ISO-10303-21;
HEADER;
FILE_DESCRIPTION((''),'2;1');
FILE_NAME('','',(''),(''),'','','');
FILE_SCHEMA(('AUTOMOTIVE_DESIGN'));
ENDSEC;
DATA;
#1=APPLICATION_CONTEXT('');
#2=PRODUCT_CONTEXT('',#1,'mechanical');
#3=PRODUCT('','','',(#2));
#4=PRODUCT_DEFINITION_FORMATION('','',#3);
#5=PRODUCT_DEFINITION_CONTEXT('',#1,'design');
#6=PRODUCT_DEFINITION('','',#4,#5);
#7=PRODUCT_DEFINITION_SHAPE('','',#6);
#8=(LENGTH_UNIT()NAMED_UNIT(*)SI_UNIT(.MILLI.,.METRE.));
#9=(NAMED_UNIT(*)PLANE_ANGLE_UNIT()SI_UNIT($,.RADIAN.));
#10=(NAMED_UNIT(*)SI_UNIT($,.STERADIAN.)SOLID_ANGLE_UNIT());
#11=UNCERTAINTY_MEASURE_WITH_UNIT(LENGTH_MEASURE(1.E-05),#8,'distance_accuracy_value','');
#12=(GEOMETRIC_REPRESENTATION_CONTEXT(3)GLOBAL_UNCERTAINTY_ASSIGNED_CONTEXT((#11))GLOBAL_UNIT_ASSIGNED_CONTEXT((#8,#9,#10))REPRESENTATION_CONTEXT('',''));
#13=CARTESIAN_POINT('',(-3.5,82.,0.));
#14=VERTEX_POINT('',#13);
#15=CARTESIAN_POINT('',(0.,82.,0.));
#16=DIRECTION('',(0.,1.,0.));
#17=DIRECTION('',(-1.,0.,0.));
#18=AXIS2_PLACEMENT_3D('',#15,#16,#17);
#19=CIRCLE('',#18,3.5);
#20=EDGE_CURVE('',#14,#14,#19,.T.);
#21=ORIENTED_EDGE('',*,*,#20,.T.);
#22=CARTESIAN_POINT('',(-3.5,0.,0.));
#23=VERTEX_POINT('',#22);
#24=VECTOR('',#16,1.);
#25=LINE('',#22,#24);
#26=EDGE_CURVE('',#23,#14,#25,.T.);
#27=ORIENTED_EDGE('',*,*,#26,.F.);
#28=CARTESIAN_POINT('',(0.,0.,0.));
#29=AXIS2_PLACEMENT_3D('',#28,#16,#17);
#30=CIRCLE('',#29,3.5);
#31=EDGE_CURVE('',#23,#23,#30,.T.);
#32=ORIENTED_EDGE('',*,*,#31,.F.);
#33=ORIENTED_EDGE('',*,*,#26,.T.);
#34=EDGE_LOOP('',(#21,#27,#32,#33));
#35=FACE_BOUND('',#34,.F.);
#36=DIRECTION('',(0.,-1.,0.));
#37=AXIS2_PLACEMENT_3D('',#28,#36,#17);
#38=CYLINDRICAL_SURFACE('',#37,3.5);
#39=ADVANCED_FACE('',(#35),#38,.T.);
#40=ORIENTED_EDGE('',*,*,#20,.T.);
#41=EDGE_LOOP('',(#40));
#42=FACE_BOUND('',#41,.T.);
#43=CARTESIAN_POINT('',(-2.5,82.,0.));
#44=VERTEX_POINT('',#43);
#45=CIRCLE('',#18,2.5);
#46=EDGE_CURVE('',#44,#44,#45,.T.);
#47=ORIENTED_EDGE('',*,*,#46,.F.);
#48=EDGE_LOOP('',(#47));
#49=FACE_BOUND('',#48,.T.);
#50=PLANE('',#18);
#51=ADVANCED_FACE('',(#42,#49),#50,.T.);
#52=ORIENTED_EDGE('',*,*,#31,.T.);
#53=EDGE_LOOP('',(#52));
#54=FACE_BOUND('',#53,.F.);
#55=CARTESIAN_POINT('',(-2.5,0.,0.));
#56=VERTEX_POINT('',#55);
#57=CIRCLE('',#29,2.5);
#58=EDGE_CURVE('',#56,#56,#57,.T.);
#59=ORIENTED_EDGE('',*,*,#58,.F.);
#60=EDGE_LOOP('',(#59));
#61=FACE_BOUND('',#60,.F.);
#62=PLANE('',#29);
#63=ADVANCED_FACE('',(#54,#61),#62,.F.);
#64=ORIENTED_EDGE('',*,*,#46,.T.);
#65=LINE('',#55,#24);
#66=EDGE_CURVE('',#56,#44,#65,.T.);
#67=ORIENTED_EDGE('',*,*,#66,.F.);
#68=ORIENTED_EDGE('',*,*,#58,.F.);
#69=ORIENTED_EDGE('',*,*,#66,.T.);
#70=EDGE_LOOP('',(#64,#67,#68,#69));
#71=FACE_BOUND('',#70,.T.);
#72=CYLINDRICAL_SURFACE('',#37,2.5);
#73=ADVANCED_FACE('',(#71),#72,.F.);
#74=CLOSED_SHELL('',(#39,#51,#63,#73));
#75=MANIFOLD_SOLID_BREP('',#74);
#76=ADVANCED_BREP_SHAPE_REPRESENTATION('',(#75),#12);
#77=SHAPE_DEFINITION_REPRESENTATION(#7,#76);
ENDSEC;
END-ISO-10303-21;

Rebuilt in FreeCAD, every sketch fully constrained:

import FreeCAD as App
import Part
import Sketcher
from FreeCAD import Vector

doc = App.newDocument("Part")
body = doc.addObject("PartDesign::Body", "Body")

sketch1 = body.newObject("Sketcher::SketchObject", "Sketch")
sketch1.AttachmentSupport = (doc.getObject("XZ_Plane"), [""])
sketch1.MapMode = "FlatFace"
sketch1.addGeometry(Part.Circle(Vector(0, 0, 0), Vector(0, 0, 1), 3.5), False)
sketch1.addGeometry(Part.Circle(Vector(0, 0, 0), Vector(0, 0, 1), 2.5), False)
sketch1.addConstraint(Sketcher.Constraint("Coincident", 0, 3, -1, 1))
sketch1.addConstraint(Sketcher.Constraint("Coincident", 1, 3, -1, 1))
sketch1.addConstraint(Sketcher.Constraint("Diameter", 0, 7.0))
sketch1.addConstraint(Sketcher.Constraint("Diameter", 1, 5.0))
pad1 = body.newObject("PartDesign::Pad", "Pad")
pad1.Profile = sketch1
pad1.Length = 82
pad1.Reversed = True

doc.recompute()
